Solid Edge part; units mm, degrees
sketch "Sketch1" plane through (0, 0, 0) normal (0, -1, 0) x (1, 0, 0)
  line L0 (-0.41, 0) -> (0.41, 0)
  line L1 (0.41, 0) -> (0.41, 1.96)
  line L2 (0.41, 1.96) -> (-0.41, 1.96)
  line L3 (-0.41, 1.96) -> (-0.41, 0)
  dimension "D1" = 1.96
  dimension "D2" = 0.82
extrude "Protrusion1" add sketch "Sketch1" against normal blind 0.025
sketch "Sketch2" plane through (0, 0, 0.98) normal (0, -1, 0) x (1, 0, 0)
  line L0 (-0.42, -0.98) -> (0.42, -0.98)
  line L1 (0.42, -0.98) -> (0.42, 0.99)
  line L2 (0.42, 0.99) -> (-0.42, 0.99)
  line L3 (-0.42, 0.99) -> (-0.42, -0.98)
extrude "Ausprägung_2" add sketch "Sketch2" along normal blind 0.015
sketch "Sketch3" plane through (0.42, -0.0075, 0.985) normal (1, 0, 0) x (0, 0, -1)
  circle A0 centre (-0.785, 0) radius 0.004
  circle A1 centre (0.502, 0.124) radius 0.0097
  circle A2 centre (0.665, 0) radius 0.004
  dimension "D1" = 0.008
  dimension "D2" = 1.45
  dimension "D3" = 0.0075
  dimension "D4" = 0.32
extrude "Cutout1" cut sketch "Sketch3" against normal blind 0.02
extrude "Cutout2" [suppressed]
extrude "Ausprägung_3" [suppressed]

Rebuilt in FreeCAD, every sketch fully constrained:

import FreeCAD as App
import Part
import Sketcher
from FreeCAD import Vector


def add_polygon(sketch, points):
    """Adds a closed chain of lines whose ends are joined by coincident constraints."""
    first, n = sketch.GeometryCount, len(points)
    for a, b in zip(points, points[1:] + points[:1]):
        sketch.addGeometry(Part.LineSegment(App.Vector(*a, 0), App.Vector(*b, 0)), False)
    for i in range(n):
        sketch.addConstraint(Sketcher.Constraint("Coincident", first + i, 2, first + (i + 1) % n, 1))

doc = App.newDocument("Part")
body = doc.addObject("PartDesign::Body", "Body")

sketch1 = doc.addObject("Sketcher::SketchObject", "Sketch")
body.addObject(sketch1)
sketch1.AttachmentSupport = (doc.XZ_Plane, [""])
sketch1.MapMode = "FlatFace"
add_polygon(sketch1, [(-0.4, 2), (-0.4, 0), (0.4, 0), (0.4, 2)])
sketch1.addConstraint([
    Sketcher.Constraint("Vertical", 0),
    Sketcher.Constraint("Horizontal", 1),
    Sketcher.Constraint("Vertical", 2),
    Sketcher.Constraint("Horizontal", 3),
    Sketcher.Constraint("Symmetric", 0, 2, 1, 2, -1, 1),
    Sketcher.Constraint("DistanceX", 0, 2, -1, 1, 0.41),
    Sketcher.Constraint("DistanceY", 0, 2, 0, 1, 1.96),
])
pad1 = doc.addObject("PartDesign::Pad", "Pad")
body.addObject(pad1)
pad1.Profile = sketch1
pad1.Length = 0.025
pad1.Reversed = True

sketch2 = doc.addObject("Sketcher::SketchObject", "Sketch001")
body.addObject(sketch2)
sketch2.AttachmentSupport = (doc.XZ_Plane, [""])
sketch2.MapMode = "FlatFace"
add_polygon(sketch2, [(-0.4, 2), (-0.4, 0), (0.4, 0), (0.4, 2)])
sketch2.addConstraint([
    Sketcher.Constraint("Vertical", 0),
    Sketcher.Constraint("Horizontal", 1),
    Sketcher.Constraint("Vertical", 2),
    Sketcher.Constraint("Horizontal", 3),
    Sketcher.Constraint("Symmetric", 0, 2, 1, 2, -1, 1),
    Sketcher.Constraint("DistanceX", 1, 1, 1, 2, 0.84),
    Sketcher.Constraint("DistanceY", 0, 2, 0, 1, 1.97),
])
pad2 = doc.addObject("PartDesign::Pad", "Pad001")
body.addObject(pad2)
pad2.Profile = sketch2
pad2.Length = 0.015

sketch3 = doc.addObject("Sketcher::SketchObject", "Sketch002")
body.addObject(sketch3)
sketch3.AttachmentSupport = (doc.YZ_Plane, [""])
sketch3.MapMode = "FlatFace"
sketch3.AttachmentOffset = App.Placement(Vector(0, 0, 0.42), App.Rotation())
sketch3.addGeometry([
    Part.Circle(Vector(-0.0075, 1.77, 0), Vector(0, 0, 1), 0.004),
    Part.Circle(Vector(0.1165, 0.483, 0), Vector(0, 0, 1), 0.0097),
    Part.Circle(Vector(-0.0075, 0.32, 0), Vector(0, 0, 1), 0.004),
], False)
sketch3.addConstraint([
    Sketcher.Constraint("Equal", 0, 2),
    Sketcher.Constraint("Vertical", 0, 3, 2, 3),
    Sketcher.Constraint("Diameter", 0, 0.008),
    Sketcher.Constraint("Diameter", 1, 0.0194),
    Sketcher.Constraint("DistanceY", -1, 1, 0, 3, 1.77),
    Sketcher.Constraint("DistanceY", -1, 1, 2, 3, 0.32),
    Sketcher.Constraint("DistanceY", -1, 1, 1, 3, 0.483),
    Sketcher.Constraint("DistanceX", 0, 3, 1, 3, 0.124),
    Sketcher.Constraint("DistanceX", 0, 3, -1, 1, 0.0075),
])
pocket1 = doc.addObject("PartDesign::Pocket", "Pocket")
body.addObject(pocket1)
pocket1.Profile = sketch3
pocket1.Length = 0.02

doc.recompute()
